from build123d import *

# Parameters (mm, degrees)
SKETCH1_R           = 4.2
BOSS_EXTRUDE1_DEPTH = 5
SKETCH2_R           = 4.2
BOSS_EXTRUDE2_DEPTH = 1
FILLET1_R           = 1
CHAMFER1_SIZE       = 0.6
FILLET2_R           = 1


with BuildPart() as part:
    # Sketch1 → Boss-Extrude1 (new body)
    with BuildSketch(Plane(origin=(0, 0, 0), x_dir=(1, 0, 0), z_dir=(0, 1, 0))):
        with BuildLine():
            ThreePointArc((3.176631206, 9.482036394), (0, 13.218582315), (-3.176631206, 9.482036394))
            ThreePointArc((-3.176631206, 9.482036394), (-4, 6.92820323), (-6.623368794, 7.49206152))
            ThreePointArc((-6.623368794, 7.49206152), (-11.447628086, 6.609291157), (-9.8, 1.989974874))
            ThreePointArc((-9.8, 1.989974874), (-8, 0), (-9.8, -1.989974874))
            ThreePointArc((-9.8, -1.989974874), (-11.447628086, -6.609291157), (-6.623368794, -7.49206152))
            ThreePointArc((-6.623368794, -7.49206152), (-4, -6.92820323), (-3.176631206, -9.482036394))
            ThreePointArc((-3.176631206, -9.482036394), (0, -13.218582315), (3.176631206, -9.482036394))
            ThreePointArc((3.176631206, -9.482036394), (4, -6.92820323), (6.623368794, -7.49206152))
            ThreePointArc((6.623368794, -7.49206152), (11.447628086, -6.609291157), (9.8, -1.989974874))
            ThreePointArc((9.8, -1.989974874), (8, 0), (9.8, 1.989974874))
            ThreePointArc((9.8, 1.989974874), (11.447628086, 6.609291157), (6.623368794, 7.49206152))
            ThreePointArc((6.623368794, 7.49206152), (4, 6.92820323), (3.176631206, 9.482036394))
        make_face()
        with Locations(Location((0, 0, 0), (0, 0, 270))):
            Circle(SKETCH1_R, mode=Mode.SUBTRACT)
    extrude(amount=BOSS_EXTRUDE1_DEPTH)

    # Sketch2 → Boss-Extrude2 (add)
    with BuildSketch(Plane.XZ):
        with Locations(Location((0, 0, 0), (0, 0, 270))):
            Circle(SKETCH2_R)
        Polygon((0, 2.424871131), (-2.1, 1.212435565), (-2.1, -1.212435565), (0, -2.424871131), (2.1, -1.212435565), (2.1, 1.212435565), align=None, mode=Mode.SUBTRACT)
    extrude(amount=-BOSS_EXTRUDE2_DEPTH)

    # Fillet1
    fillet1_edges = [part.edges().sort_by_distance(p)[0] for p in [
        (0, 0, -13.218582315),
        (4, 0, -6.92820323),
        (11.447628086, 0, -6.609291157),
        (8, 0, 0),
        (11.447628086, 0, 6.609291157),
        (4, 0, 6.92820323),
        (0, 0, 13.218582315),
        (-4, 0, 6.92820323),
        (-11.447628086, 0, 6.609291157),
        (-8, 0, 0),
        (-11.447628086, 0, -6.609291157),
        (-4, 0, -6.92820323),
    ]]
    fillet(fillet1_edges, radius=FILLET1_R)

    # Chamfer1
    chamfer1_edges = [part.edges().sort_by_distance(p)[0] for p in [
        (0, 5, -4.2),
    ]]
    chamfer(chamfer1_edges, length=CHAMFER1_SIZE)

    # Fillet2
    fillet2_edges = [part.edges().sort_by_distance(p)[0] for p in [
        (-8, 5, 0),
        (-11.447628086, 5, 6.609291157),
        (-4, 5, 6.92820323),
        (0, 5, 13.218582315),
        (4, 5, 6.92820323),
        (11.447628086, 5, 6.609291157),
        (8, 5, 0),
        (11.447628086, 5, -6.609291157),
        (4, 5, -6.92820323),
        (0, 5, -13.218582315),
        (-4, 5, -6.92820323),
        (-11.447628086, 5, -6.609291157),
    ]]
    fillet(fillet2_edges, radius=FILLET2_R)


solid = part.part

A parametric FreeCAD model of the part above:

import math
import FreeCAD as App
import Part
import Sketcher

V = App.Vector
Q = App.Units.Quantity


def edges_at(feature, points):
    """Names of the edges that pass closest to the given points."""
    edges = feature.Shape.Edges
    near = lambda p: min(range(len(edges)), key=lambda i: edges[i].distToShape(Part.Vertex(*p))[0])
    return sorted({f"Edge{near(p) + 1}" for p in points})

doc = App.newDocument("Part")
body = doc.addObject("PartDesign::Body", "Body")

# Sketch on XZ plane
sketch1 = doc.addObject("Sketcher::SketchObject", "Sketch")
body.addObject(sketch1)
sketch1.AttachmentSupport = (doc.XZ_Plane, [""])
sketch1.MapMode = "FlatFace"
sketch1.addGeometry([
    Part.ArcOfCircle(Part.Circle(V(0, -10, 0), V(0, 0, 1), 3.2), math.radians(171), math.radians(369)),  # 0
    Part.ArcOfCircle(Part.Circle(V(-5, -8.7, 0), V(0, 0, 1), 2), math.radians(-24), math.radians(144)),  # 1
    Part.ArcOfCircle(Part.Circle(V(-8.7, -5, 0), V(0, 0, 1), 3.2), math.radians(111), math.radians(309)),  # 2
    Part.ArcOfCircle(Part.Circle(V(-10, 0, 0), V(0, 0, 1), 2), math.radians(-84), math.radians(84)),  # 3
    Part.ArcOfCircle(Part.Circle(V(-8.7, 5, 0), V(0, 0, 1), 3.2), math.radians(51), math.radians(249)),  # 4
    Part.ArcOfCircle(Part.Circle(V(-5, 8.7, 0), V(0, 0, 1), 2), math.radians(-144), math.radians(24)),  # 5
    Part.ArcOfCircle(Part.Circle(V(0, 10, 0), V(0, 0, 1), 3.2), math.radians(-9), math.radians(189)),  # 6
    Part.ArcOfCircle(Part.Circle(V(5, 8.7, 0), V(0, 0, 1), 2), math.radians(156), math.radians(324)),  # 7
    Part.ArcOfCircle(Part.Circle(V(8.7, 5, 0), V(0, 0, 1), 3.2), math.radians(-69), math.radians(129)),  # 8
    Part.ArcOfCircle(Part.Circle(V(10, 0, 0), V(0, 0, 1), 2), math.radians(96), math.radians(264)),  # 9
    Part.ArcOfCircle(Part.Circle(V(8.7, -5, 0), V(0, 0, 1), 3.2), math.radians(-129), math.radians(69)),  # 10
    Part.ArcOfCircle(Part.Circle(V(5, -8.7, 0), V(0, 0, 1), 2), math.radians(36), math.radians(204)),  # 11
    Part.Circle(V(0, 0, 0), V(0, 0, 1), 4.2),  # 12
], False)
sketch1.addConstraint([
    Sketcher.Constraint("Coincident", 0, 1, 1, 1),
    Sketcher.Constraint("Coincident", 1, 2, 2, 2),
    Sketcher.Constraint("Coincident", 2, 1, 3, 1),
    Sketcher.Constraint("Coincident", 3, 2, 4, 2),
    Sketcher.Constraint("Coincident", 4, 1, 5, 1),
    Sketcher.Constraint("Coincident", 5, 2, 6, 2),
    Sketcher.Constraint("Coincident", 6, 1, 7, 1),
    Sketcher.Constraint("Coincident", 7, 2, 8, 2),
    Sketcher.Constraint("Coincident", 8, 1, 9, 1),
    Sketcher.Constraint("Coincident", 9, 2, 10, 2),
    Sketcher.Constraint("Coincident", 10, 1, 11, 1),
    Sketcher.Constraint("Coincident", 11, 2, 0, 2),
    Sketcher.Constraint("Coincident", 12, 3, -1, 1),
    Sketcher.Constraint("Equal", 0, 2),
    Sketcher.Constraint("Equal", 1, 3),
    Sketcher.Constraint("Equal", 2, 4),
    Sketcher.Constraint("Equal", 3, 5),
    Sketcher.Constraint("Equal", 4, 6),
    Sketcher.Constraint("Equal", 5, 7),
    Sketcher.Constraint("Equal", 6, 8),
    Sketcher.Constraint("Equal", 7, 9),
    Sketcher.Constraint("Equal", 8, 10),
    Sketcher.Constraint("Equal", 9, 11),
    Sketcher.Constraint("Symmetric", 0, 3, 6, 3, -1, 1),
    Sketcher.Constraint("Symmetric", 1, 3, 7, 3, -1, 1),
    Sketcher.Constraint("Symmetric", 2, 3, 8, 3, -1, 1),
    Sketcher.Constraint("Symmetric", 3, 3, 9, 3, -1, 1),
    Sketcher.Constraint("Symmetric", 4, 3, 10, 3, -1, 1),
    Sketcher.Constraint("Symmetric", 5, 3, 11, 3, -1, 1),
    Sketcher.Constraint("Symmetric", 5, 3, 7, 3, -2),
    Sketcher.Constraint("Symmetric", 4, 3, 8, 3, -2),
    Sketcher.Constraint("PointOnObject", 0, 3, -2),
    Sketcher.Constraint("PointOnObject", 3, 3, -1),
    Sketcher.Constraint("Radius", 1, 2.0),
    Sketcher.Constraint("Diameter", 12, 8.4),
    Sketcher.Constraint("DistanceY", 0, 3, -1, 1, 10.0),
    Sketcher.Constraint("DistanceX", 1, 3, -1, 1, 5.0),
    Sketcher.Constraint("DistanceY", 2, 3, -1, 1, 5.0),
    Sketcher.Constraint("DistanceX", 3, 3, -1, 1, 10.0),
    Sketcher.Constraint("DistanceX", 2, 1, -1, 1, 9.8),
    Sketcher.Constraint("Radius", 0, 3.218582),
    Sketcher.Constraint("DistanceX", 0, 1, -1, 1, 3.176631),
])
pad1 = doc.addObject("PartDesign::Pad", "Pad")
body.addObject(pad1)
pad1.Profile = sketch1
pad1.Length = 5
pad1.Reversed = True

# Sketch on XZ plane
sketch2 = doc.addObject("Sketcher::SketchObject", "Sketch001")
body.addObject(sketch2)
sketch2.AttachmentSupport = (doc.XZ_Plane, [""])
sketch2.MapMode = "FlatFace"
sketch2.addGeometry([
    Part.Circle(V(0, 0, 0), V(0, 0, 1), 4.2),  # 0
    Part.LineSegment(V(-2.1, 1.2, 0), V(0, 2.4, 0)),  # 1
    Part.LineSegment(V(0, 2.4, 0), V(2.1, 1.2, 0)),  # 2
    Part.LineSegment(V(2.1, 1.2, 0), V(2.1, -1.2, 0)),  # 3
    Part.LineSegment(V(2.1, -1.2, 0), V(0, -2.4, 0)),  # 4
    Part.LineSegment(V(0, -2.4, 0), V(-2.1, -1.2, 0)),  # 5
    Part.LineSegment(V(-2.1, -1.2, 0), V(-2.1, 1.2, 0)),  # 6
], False)
sketch2.addConstraint([
    Sketcher.Constraint("Coincident", 1, 2, 2, 1),
    Sketcher.Constraint("Coincident", 2, 2, 3, 1),
    Sketcher.Constraint("Coincident", 3, 2, 4, 1),
    Sketcher.Constraint("Coincident", 4, 2, 5, 1),
    Sketcher.Constraint("Coincident", 5, 2, 6, 1),
    Sketcher.Constraint("Coincident", 6, 2, 1, 1),
    Sketcher.Constraint("Vertical", 3),
    Sketcher.Constraint("Vertical", 6),
    Sketcher.Constraint("Coincident", 0, 3, -1, 1),
    Sketcher.Constraint("Symmetric", 1, 2, 4, 2, -1, 1),
    Sketcher.Constraint("Symmetric", 2, 2, 5, 2, -1, 1),
    Sketcher.Constraint("PointOnObject", 1, 2, -2),
    Sketcher.Constraint("Parallel", 1, 4),
    Sketcher.Constraint("Horizontal", 3, 2, 5, 2),
    Sketcher.Constraint("Diameter", 0, 8.4),
    Sketcher.Constraint("Angle", 1, Q("30 deg")),
    Sketcher.Constraint("DistanceX", -1, 1, 2, 2, 2.1),
    Sketcher.Constraint("DistanceY", 3, 2, 3, 1, 2.424871),
])
pad2 = doc.addObject("PartDesign::Pad", "Pad001")
body.addObject(pad2)
pad2.Profile = sketch2
pad2.Length = 1
pad2.Reversed = True
doc.recompute()

fillet = doc.addObject("PartDesign::Fillet", "Fillet")
body.addObject(fillet)
fillet.Base = (pad2, edges_at(pad2, [
    (0, 0, -13.219),
    (4, 0, -6.928),
    (11.448, 0, -6.609),
    (8, 0, 0),
    (11.448, 0, 6.609),
    (4, 0, 6.928),
    (0, 0, 13.219),
    (-4, 0, 6.928),
    (-11.448, 0, 6.609),
    (-8, 0, 0),
    (-11.448, 0, -6.609),
    (-4, 0, -6.928),
]))
fillet.Radius = 1
doc.recompute()

chamfer = doc.addObject("PartDesign::Chamfer", "Chamfer")
body.addObject(chamfer)
chamfer.Base = (fillet, edges_at(fillet, [(0, 5, -4.2)]))
chamfer.Size = 0.6
doc.recompute()

fillet2 = doc.addObject("PartDesign::Fillet", "Fillet001")
body.addObject(fillet2)
fillet2.Base = (chamfer, edges_at(chamfer, [
    (-8, 5, 0),
    (-11.448, 5, 6.609),
    (-4, 5, 6.928),
    (0, 5, 13.219),
    (4, 5, 6.928),
    (11.448, 5, 6.609),
    (8, 5, 0),
    (11.448, 5, -6.609),
    (4, 5, -6.928),
    (0, 5, -13.219),
    (-4, 5, -6.928),
    (-11.448, 5, -6.609),
]))
fillet2.Radius = 1

doc.recompute()
